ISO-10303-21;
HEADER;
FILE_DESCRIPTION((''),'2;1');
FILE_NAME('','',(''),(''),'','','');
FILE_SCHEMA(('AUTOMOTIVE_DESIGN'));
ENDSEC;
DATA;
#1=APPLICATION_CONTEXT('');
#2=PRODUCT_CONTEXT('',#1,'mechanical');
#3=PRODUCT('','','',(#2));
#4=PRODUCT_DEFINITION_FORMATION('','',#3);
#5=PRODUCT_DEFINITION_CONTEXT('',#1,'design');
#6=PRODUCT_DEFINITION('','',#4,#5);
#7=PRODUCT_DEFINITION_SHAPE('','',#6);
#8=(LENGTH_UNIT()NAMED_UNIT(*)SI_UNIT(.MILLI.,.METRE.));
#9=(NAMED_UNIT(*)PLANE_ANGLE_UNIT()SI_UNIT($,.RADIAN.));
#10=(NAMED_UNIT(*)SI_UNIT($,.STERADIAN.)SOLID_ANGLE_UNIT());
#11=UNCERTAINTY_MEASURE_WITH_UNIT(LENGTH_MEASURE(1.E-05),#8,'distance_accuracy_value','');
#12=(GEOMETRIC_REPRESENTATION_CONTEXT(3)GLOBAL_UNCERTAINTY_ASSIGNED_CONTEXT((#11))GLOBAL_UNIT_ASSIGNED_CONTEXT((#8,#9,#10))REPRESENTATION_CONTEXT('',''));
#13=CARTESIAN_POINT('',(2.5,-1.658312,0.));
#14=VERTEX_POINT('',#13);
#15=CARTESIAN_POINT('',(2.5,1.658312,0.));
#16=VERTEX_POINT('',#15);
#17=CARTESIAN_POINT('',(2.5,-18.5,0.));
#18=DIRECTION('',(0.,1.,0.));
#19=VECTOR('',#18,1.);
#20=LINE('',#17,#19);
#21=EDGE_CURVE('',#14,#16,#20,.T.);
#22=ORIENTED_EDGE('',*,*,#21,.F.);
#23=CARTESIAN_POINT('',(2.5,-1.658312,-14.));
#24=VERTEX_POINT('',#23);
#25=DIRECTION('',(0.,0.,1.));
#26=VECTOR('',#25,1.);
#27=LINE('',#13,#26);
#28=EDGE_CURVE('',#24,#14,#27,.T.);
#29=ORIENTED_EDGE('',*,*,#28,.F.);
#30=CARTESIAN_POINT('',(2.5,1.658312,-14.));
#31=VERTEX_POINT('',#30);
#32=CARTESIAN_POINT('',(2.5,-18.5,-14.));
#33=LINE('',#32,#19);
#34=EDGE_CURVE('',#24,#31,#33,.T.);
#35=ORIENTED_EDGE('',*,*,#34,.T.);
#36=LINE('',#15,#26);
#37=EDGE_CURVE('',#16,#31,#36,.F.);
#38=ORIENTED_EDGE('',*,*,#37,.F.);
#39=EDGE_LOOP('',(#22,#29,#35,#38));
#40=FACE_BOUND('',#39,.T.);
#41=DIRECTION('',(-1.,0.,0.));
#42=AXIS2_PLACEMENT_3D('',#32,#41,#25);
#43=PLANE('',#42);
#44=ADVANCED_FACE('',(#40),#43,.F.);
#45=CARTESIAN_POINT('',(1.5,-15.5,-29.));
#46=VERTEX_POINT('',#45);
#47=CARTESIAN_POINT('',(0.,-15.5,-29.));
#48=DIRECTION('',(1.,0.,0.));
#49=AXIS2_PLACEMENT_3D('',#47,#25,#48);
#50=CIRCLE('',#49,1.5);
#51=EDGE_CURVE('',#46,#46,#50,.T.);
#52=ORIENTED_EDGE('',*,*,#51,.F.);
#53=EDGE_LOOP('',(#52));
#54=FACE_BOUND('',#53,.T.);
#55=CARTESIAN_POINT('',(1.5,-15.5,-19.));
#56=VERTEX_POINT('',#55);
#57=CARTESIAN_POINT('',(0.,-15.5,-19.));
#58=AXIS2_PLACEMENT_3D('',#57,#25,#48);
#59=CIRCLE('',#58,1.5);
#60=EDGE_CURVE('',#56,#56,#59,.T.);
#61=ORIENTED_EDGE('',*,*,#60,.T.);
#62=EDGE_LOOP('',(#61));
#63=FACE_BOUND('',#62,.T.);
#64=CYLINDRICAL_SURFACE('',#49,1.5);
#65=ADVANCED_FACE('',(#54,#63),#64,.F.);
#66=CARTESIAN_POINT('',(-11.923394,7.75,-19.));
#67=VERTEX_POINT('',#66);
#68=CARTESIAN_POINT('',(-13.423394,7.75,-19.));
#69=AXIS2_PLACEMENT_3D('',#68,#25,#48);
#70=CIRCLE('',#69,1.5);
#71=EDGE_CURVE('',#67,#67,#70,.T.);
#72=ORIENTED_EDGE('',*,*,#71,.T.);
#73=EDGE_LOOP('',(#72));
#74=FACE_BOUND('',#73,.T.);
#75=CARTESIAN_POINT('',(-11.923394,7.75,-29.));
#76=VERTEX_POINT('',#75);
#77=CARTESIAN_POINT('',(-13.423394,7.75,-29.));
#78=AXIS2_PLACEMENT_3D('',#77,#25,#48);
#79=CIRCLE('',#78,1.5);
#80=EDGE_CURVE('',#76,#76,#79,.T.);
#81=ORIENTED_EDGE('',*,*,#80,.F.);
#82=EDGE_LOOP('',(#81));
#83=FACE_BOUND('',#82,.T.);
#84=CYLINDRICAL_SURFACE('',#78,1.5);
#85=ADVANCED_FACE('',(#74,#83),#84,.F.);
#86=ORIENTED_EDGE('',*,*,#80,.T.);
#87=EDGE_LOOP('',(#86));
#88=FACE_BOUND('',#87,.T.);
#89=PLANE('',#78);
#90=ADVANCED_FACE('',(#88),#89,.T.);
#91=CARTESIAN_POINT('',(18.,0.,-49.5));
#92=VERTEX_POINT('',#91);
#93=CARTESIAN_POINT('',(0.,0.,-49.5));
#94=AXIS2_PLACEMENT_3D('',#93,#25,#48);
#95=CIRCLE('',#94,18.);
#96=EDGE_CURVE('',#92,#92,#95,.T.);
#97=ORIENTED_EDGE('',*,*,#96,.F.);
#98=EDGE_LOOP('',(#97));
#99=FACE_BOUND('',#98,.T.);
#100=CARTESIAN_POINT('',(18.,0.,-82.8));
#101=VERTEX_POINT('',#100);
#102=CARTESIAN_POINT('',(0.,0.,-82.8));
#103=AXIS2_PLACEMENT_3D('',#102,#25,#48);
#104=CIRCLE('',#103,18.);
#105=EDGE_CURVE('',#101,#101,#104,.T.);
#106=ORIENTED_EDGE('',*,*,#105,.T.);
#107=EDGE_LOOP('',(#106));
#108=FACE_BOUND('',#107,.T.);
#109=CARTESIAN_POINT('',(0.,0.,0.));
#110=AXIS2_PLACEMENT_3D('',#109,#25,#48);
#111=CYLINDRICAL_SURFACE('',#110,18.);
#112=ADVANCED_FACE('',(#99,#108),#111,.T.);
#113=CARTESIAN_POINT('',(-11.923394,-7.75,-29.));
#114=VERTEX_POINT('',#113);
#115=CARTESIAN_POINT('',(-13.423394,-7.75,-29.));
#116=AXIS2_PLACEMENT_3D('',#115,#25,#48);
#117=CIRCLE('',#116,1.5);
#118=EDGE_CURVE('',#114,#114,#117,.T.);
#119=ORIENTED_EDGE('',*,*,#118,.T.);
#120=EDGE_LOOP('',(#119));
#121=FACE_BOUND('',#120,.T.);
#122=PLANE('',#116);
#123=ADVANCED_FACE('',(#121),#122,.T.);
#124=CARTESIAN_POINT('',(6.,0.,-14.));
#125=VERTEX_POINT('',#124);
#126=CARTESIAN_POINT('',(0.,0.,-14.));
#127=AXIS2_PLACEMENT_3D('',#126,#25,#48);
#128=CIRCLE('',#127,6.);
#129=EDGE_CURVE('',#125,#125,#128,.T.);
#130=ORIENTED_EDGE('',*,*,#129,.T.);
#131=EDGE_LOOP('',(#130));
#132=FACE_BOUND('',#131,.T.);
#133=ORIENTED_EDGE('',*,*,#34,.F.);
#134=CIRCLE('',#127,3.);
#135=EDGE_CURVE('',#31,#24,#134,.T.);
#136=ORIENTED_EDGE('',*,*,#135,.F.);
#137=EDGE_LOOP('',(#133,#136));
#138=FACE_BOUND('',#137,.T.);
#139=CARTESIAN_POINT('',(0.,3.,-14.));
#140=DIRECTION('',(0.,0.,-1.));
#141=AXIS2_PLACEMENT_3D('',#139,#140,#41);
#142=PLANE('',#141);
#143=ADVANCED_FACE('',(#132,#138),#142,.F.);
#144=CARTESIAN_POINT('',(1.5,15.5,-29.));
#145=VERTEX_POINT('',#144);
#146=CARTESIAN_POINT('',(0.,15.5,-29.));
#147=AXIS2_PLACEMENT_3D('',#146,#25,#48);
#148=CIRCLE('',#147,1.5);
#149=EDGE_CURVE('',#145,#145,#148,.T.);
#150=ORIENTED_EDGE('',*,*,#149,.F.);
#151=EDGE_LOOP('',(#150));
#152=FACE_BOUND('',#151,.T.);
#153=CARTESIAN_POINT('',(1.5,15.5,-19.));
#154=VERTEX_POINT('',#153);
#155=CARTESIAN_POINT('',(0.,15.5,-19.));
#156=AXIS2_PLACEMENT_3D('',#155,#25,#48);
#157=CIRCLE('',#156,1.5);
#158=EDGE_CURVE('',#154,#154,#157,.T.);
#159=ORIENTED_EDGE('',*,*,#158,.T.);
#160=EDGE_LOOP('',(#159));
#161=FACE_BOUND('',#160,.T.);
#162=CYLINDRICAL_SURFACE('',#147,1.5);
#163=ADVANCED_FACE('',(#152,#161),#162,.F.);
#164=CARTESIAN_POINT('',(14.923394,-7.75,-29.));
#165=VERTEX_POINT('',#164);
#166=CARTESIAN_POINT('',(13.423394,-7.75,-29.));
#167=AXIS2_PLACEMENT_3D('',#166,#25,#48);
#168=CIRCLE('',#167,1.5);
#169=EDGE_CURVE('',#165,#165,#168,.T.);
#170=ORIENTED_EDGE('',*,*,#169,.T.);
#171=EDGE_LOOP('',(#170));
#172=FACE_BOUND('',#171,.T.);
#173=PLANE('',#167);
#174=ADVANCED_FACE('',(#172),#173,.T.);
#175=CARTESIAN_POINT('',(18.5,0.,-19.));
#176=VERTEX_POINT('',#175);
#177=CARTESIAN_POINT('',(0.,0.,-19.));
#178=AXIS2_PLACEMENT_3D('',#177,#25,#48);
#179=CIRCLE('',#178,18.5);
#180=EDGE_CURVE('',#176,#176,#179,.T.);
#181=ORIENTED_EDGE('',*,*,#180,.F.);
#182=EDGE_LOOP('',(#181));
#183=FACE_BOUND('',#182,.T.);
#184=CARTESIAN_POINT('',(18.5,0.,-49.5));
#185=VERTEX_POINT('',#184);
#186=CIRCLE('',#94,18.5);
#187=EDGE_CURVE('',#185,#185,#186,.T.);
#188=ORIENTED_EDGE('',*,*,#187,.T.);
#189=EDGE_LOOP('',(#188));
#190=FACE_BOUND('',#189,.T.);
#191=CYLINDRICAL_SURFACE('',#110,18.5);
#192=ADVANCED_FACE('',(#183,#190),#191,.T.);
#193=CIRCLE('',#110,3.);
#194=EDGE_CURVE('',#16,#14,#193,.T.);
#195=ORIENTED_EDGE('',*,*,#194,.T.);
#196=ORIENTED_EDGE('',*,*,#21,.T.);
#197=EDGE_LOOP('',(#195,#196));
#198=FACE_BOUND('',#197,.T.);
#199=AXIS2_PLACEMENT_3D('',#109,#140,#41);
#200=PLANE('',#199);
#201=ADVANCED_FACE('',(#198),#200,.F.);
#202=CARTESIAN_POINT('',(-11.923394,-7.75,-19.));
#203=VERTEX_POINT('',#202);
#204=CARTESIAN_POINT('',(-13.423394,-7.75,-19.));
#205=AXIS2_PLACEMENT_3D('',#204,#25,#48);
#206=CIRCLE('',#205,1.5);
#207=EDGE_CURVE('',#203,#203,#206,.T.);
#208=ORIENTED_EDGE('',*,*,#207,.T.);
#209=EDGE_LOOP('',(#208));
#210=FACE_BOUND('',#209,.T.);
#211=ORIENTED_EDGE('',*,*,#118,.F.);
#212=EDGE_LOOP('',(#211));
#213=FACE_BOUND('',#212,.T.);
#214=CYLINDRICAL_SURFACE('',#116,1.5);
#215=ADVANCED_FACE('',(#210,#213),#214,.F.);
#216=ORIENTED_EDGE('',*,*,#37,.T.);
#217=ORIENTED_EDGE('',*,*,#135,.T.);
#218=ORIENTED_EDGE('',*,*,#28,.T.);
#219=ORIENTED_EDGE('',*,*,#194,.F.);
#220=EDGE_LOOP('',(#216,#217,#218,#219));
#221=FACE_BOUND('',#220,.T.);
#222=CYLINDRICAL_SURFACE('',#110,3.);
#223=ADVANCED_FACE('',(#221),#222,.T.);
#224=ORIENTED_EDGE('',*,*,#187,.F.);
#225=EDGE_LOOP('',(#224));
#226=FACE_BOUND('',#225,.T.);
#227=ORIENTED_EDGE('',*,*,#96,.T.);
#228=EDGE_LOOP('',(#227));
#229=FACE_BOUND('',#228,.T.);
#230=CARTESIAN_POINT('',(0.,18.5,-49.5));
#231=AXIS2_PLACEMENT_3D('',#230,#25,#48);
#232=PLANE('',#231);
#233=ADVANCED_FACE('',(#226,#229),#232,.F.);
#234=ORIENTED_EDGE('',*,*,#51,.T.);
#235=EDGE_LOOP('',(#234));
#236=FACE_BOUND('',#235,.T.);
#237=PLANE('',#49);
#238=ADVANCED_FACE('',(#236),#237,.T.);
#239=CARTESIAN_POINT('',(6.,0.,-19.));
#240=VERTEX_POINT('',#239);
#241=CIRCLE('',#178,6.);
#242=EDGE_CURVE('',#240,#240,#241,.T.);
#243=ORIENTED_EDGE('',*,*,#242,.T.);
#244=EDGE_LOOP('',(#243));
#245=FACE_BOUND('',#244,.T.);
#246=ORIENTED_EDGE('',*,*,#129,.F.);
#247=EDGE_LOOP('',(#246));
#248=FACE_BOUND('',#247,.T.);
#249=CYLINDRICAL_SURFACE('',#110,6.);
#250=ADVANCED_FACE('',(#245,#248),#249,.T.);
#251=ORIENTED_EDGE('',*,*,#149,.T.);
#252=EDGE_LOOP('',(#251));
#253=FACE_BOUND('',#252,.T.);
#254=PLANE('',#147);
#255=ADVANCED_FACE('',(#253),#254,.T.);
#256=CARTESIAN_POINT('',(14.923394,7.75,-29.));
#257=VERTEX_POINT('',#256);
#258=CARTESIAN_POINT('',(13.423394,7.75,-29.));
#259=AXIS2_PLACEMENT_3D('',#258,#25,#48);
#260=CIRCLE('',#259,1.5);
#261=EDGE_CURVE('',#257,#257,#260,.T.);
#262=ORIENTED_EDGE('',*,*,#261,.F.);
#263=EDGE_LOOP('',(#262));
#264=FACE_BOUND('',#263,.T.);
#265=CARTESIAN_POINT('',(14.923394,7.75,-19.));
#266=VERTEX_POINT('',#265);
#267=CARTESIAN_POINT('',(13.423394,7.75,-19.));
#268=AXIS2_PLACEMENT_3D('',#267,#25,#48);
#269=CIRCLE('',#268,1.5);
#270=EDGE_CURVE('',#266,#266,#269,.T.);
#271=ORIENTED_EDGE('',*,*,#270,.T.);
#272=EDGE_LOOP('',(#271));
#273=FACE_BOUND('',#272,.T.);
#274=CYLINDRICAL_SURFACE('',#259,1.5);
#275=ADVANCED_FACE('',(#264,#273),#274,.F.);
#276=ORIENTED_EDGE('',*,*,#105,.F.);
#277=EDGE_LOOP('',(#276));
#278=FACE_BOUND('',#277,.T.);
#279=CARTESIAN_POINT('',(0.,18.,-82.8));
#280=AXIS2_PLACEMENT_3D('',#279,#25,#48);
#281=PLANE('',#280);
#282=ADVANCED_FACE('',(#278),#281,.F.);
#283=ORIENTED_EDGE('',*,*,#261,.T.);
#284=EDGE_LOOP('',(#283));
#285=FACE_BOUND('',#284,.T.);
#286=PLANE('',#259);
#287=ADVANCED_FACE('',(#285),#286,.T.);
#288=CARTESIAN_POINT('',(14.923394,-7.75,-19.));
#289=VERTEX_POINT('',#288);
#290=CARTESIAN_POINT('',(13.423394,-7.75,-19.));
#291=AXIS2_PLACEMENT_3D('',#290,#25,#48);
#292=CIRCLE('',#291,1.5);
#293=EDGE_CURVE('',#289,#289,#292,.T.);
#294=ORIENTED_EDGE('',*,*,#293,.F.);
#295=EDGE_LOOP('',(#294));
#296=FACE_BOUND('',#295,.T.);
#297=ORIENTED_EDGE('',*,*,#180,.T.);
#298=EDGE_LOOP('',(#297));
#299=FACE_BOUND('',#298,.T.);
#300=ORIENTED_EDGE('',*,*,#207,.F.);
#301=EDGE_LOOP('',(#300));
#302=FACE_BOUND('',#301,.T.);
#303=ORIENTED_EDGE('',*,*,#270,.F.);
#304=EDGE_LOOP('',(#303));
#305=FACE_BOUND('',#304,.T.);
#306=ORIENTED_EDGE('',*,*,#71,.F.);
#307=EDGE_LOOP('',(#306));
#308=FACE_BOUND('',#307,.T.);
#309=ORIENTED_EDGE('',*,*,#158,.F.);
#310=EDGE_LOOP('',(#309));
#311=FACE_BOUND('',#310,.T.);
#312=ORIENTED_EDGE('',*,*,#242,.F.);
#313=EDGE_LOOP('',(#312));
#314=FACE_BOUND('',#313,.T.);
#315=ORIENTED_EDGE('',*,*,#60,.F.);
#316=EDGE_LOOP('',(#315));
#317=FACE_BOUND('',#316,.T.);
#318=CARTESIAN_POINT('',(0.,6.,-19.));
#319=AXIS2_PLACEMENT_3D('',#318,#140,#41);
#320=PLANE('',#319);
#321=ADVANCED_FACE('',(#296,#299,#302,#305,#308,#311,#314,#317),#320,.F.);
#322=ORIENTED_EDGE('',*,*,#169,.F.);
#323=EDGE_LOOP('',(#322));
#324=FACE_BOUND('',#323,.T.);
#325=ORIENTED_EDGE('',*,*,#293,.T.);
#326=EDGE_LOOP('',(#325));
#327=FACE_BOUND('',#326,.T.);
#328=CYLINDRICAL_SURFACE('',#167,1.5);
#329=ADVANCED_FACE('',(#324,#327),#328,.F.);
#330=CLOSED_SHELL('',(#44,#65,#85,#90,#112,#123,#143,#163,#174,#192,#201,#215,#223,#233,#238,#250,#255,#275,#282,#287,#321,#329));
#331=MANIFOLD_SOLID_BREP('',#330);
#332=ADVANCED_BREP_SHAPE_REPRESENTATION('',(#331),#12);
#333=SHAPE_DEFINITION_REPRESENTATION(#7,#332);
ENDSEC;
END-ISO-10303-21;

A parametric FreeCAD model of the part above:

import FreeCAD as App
import Part
import Sketcher

doc = App.newDocument("Part")
body = doc.addObject("PartDesign::Body", "Body")

# Sketch on YZ plane
sketch1 = body.newObject("Sketcher::SketchObject", "Sketch")
sketch1.AttachmentSupport = (doc.getObject("YZ_Plane"), [""])
sketch1.MapMode = "FlatFace"
sketch1.addGeometry(Part.LineSegment(App.Vector(3, 0, 0), App.Vector(0, 0, 0)), False)
sketch1.addGeometry(Part.LineSegment(App.Vector(0, 0, 0), App.Vector(0, -82.8, 0)), False)
sketch1.addGeometry(Part.LineSegment(App.Vector(0, -82.8, 0), App.Vector(18, -82.8, 0)), False)
sketch1.addGeometry(Part.LineSegment(App.Vector(18, -82.8, 0), App.Vector(18, -49.5, 0)), False)
sketch1.addGeometry(Part.LineSegment(App.Vector(18, -49.5, 0), App.Vector(18.5, -49.5, 0)), False)
sketch1.addGeometry(Part.LineSegment(App.Vector(18.5, -49.5, 0), App.Vector(18.5, -19, 0)), False)
sketch1.addGeometry(Part.LineSegment(App.Vector(18.5, -19, 0), App.Vector(6, -19, 0)), False)
sketch1.addGeometry(Part.LineSegment(App.Vector(6, -19, 0), App.Vector(6, -14, 0)), False)
sketch1.addGeometry(Part.LineSegment(App.Vector(6, -14, 0), App.Vector(3, -14, 0)), False)
sketch1.addGeometry(Part.LineSegment(App.Vector(3, -14, 0), App.Vector(3, 0, 0)), False)
sketch1.addConstraint(Sketcher.Constraint("Coincident", 0, 2, 1, 1))
sketch1.addConstraint(Sketcher.Constraint("Coincident", 1, 2, 2, 1))
sketch1.addConstraint(Sketcher.Constraint("Coincident", 2, 2, 3, 1))
sketch1.addConstraint(Sketcher.Constraint("Coincident", 3, 2, 4, 1))
sketch1.addConstraint(Sketcher.Constraint("Coincident", 4, 2, 5, 1))
sketch1.addConstraint(Sketcher.Constraint("Coincident", 5, 2, 6, 1))
sketch1.addConstraint(Sketcher.Constraint("Coincident", 6, 2, 7, 1))
sketch1.addConstraint(Sketcher.Constraint("Coincident", 7, 2, 8, 1))
sketch1.addConstraint(Sketcher.Constraint("Coincident", 8, 2, 9, 1))
sketch1.addConstraint(Sketcher.Constraint("Coincident", 9, 2, 0, 1))
sketch1.addConstraint(Sketcher.Constraint("Horizontal", 0))
sketch1.addConstraint(Sketcher.Constraint("Vertical", 1))
sketch1.addConstraint(Sketcher.Constraint("Horizontal", 2))
sketch1.addConstraint(Sketcher.Constraint("Vertical", 3))
sketch1.addConstraint(Sketcher.Constraint("Horizontal", 4))
sketch1.addConstraint(Sketcher.Constraint("Vertical", 5))
sketch1.addConstraint(Sketcher.Constraint("Horizontal", 6))
sketch1.addConstraint(Sketcher.Constraint("Vertical", 7))
sketch1.addConstraint(Sketcher.Constraint("Horizontal", 8))
sketch1.addConstraint(Sketcher.Constraint("Vertical", 9))
sketch1.addConstraint(Sketcher.Constraint("Coincident", 0, 2, -1, 1))
sketch1.addConstraint(Sketcher.Constraint("Equal", 0, 8))
sketch1.addConstraint(Sketcher.Constraint("DistanceX", 0, 2, 0, 1, 3.0))
sketch1.addConstraint(Sketcher.Constraint("DistanceX", 2, 1, 2, 2, 18.0))
sketch1.addConstraint(Sketcher.Constraint("DistanceY", 7, 1, 7, 2, 5.0))
sketch1.addConstraint(Sketcher.Constraint("DistanceY", 9, 1, 9, 2, 14.0))
sketch1.addConstraint(Sketcher.Constraint("DistanceX", 4, 1, 4, 2, 0.5))
sketch1.addConstraint(Sketcher.Constraint("DistanceY", 1, 2, 1, 1, 82.8))
sketch1.addConstraint(Sketcher.Constraint("DistanceY", 3, 1, 3, 2, 33.3))
revolution = body.newObject("PartDesign::Revolution", "Revolution")
revolution.Profile = sketch1
revolution.ReferenceAxis = (sketch1, ["V_Axis"])
revolution.Angle = 360

# Sketch on XY plane
sketch2 = body.newObject("Sketcher::SketchObject", "Sketch001")
sketch2.AttachmentSupport = (doc.getObject("XY_Plane"), [""])
sketch2.MapMode = "FlatFace"
sketch2.AttachmentOffset = App.Placement(App.Vector(0, 0, -19), App.Rotation())
sketch2.addGeometry(Part.Circle(App.Vector(0, 15.5, 0), App.Vector(0, 0, 1), 1.5), False)
sketch2.addGeometry(Part.Circle(App.Vector(13.423394, 7.75, 0), App.Vector(0, 0, 1), 1.5), False)
sketch2.addGeometry(Part.Circle(App.Vector(13.423394, -7.75, 0), App.Vector(0, 0, 1), 1.5), False)
sketch2.addGeometry(Part.Circle(App.Vector(0, -15.5, 0), App.Vector(0, 0, 1), 1.5), False)
sketch2.addGeometry(Part.Circle(App.Vector(-13.423394, -7.75, 0), App.Vector(0, 0, 1), 1.5), False)
sketch2.addGeometry(Part.Circle(App.Vector(-13.423394, 7.75, 0), App.Vector(0, 0, 1), 1.5), False)
sketch2.addConstraint(Sketcher.Constraint("Equal", 0, 1))
sketch2.addConstraint(Sketcher.Constraint("Equal", 1, 2))
sketch2.addConstraint(Sketcher.Constraint("Equal", 2, 3))
sketch2.addConstraint(Sketcher.Constraint("Equal", 3, 4))
sketch2.addConstraint(Sketcher.Constraint("Equal", 4, 5))
sketch2.addConstraint(Sketcher.Constraint("Symmetric", 0, 3, 3, 3, -1, 1))
sketch2.addConstraint(Sketcher.Constraint("Symmetric", 1, 3, 4, 3, -1, 1))
sketch2.addConstraint(Sketcher.Constraint("Symmetric", 2, 3, 5, 3, -1, 1))
sketch2.addConstraint(Sketcher.Constraint("Symmetric", 2, 3, 4, 3, -2))
sketch2.addConstraint(Sketcher.Constraint("PointOnObject", 0, 3, -2))
sketch2.addConstraint(Sketcher.Constraint("Diameter", 0, 3.0))
sketch2.addConstraint(Sketcher.Constraint("DistanceY", 3, 3, 0, 3, 31.0))
sketch2.addConstraint(Sketcher.Constraint("DistanceY", 2, 3, 1, 3, 15.5))
sketch2.addConstraint(Sketcher.Constraint("DistanceX", -1, 1, 1, 3, 13.423394))
pocket1 = body.newObject("PartDesign::Pocket", "Pocket")
pocket1.Profile = sketch2
pocket1.Length = 10

# Sketch on XZ plane
sketch3 = body.newObject("Sketcher::SketchObject", "Sketch002")
sketch3.AttachmentSupport = (doc.getObject("XZ_Plane"), [""])
sketch3.MapMode = "FlatFace"
sketch3.addGeometry(Part.LineSegment(App.Vector(2.5, -14, 0), App.Vector(2.5, 0, 0)), False)
sketch3.addGeometry(Part.LineSegment(App.Vector(2.5, 0, 0), App.Vector(3.5, 0, 0)), False)
sketch3.addGeometry(Part.LineSegment(App.Vector(3.5, 0, 0), App.Vector(3.5, -14, 0)), False)
sketch3.addGeometry(Part.LineSegment(App.Vector(3.5, -14, 0), App.Vector(2.5, -14, 0)), False)
sketch3.addConstraint(Sketcher.Constraint("Coincident", 0, 2, 1, 1))
sketch3.addConstraint(Sketcher.Constraint("Coincident", 1, 2, 2, 1))
sketch3.addConstraint(Sketcher.Constraint("Coincident", 2, 2, 3, 1))
sketch3.addConstraint(Sketcher.Constraint("Coincident", 3, 2, 0, 1))
sketch3.addConstraint(Sketcher.Constraint("Vertical", 0))
sketch3.addConstraint(Sketcher.Constraint("Horizontal", 1))
sketch3.addConstraint(Sketcher.Constraint("Vertical", 2))
sketch3.addConstraint(Sketcher.Constraint("Horizontal", 3))
sketch3.addConstraint(Sketcher.Constraint("PointOnObject", 0, 2, -1))
sketch3.addConstraint(Sketcher.Constraint("DistanceX", 1, 1, 1, 2, 1.0))
sketch3.addConstraint(Sketcher.Constraint("DistanceY", 0, 1, 0, 2, 14.0))
sketch3.addConstraint(Sketcher.Constraint("DistanceX", -1, 1, 0, 2, 2.5))
pocket2 = body.newObject("PartDesign::Pocket", "Pocket001")
pocket2.Profile = sketch3
pocket2.Type = "ThroughAll"
pocket2.Midplane = True

doc.recompute()
